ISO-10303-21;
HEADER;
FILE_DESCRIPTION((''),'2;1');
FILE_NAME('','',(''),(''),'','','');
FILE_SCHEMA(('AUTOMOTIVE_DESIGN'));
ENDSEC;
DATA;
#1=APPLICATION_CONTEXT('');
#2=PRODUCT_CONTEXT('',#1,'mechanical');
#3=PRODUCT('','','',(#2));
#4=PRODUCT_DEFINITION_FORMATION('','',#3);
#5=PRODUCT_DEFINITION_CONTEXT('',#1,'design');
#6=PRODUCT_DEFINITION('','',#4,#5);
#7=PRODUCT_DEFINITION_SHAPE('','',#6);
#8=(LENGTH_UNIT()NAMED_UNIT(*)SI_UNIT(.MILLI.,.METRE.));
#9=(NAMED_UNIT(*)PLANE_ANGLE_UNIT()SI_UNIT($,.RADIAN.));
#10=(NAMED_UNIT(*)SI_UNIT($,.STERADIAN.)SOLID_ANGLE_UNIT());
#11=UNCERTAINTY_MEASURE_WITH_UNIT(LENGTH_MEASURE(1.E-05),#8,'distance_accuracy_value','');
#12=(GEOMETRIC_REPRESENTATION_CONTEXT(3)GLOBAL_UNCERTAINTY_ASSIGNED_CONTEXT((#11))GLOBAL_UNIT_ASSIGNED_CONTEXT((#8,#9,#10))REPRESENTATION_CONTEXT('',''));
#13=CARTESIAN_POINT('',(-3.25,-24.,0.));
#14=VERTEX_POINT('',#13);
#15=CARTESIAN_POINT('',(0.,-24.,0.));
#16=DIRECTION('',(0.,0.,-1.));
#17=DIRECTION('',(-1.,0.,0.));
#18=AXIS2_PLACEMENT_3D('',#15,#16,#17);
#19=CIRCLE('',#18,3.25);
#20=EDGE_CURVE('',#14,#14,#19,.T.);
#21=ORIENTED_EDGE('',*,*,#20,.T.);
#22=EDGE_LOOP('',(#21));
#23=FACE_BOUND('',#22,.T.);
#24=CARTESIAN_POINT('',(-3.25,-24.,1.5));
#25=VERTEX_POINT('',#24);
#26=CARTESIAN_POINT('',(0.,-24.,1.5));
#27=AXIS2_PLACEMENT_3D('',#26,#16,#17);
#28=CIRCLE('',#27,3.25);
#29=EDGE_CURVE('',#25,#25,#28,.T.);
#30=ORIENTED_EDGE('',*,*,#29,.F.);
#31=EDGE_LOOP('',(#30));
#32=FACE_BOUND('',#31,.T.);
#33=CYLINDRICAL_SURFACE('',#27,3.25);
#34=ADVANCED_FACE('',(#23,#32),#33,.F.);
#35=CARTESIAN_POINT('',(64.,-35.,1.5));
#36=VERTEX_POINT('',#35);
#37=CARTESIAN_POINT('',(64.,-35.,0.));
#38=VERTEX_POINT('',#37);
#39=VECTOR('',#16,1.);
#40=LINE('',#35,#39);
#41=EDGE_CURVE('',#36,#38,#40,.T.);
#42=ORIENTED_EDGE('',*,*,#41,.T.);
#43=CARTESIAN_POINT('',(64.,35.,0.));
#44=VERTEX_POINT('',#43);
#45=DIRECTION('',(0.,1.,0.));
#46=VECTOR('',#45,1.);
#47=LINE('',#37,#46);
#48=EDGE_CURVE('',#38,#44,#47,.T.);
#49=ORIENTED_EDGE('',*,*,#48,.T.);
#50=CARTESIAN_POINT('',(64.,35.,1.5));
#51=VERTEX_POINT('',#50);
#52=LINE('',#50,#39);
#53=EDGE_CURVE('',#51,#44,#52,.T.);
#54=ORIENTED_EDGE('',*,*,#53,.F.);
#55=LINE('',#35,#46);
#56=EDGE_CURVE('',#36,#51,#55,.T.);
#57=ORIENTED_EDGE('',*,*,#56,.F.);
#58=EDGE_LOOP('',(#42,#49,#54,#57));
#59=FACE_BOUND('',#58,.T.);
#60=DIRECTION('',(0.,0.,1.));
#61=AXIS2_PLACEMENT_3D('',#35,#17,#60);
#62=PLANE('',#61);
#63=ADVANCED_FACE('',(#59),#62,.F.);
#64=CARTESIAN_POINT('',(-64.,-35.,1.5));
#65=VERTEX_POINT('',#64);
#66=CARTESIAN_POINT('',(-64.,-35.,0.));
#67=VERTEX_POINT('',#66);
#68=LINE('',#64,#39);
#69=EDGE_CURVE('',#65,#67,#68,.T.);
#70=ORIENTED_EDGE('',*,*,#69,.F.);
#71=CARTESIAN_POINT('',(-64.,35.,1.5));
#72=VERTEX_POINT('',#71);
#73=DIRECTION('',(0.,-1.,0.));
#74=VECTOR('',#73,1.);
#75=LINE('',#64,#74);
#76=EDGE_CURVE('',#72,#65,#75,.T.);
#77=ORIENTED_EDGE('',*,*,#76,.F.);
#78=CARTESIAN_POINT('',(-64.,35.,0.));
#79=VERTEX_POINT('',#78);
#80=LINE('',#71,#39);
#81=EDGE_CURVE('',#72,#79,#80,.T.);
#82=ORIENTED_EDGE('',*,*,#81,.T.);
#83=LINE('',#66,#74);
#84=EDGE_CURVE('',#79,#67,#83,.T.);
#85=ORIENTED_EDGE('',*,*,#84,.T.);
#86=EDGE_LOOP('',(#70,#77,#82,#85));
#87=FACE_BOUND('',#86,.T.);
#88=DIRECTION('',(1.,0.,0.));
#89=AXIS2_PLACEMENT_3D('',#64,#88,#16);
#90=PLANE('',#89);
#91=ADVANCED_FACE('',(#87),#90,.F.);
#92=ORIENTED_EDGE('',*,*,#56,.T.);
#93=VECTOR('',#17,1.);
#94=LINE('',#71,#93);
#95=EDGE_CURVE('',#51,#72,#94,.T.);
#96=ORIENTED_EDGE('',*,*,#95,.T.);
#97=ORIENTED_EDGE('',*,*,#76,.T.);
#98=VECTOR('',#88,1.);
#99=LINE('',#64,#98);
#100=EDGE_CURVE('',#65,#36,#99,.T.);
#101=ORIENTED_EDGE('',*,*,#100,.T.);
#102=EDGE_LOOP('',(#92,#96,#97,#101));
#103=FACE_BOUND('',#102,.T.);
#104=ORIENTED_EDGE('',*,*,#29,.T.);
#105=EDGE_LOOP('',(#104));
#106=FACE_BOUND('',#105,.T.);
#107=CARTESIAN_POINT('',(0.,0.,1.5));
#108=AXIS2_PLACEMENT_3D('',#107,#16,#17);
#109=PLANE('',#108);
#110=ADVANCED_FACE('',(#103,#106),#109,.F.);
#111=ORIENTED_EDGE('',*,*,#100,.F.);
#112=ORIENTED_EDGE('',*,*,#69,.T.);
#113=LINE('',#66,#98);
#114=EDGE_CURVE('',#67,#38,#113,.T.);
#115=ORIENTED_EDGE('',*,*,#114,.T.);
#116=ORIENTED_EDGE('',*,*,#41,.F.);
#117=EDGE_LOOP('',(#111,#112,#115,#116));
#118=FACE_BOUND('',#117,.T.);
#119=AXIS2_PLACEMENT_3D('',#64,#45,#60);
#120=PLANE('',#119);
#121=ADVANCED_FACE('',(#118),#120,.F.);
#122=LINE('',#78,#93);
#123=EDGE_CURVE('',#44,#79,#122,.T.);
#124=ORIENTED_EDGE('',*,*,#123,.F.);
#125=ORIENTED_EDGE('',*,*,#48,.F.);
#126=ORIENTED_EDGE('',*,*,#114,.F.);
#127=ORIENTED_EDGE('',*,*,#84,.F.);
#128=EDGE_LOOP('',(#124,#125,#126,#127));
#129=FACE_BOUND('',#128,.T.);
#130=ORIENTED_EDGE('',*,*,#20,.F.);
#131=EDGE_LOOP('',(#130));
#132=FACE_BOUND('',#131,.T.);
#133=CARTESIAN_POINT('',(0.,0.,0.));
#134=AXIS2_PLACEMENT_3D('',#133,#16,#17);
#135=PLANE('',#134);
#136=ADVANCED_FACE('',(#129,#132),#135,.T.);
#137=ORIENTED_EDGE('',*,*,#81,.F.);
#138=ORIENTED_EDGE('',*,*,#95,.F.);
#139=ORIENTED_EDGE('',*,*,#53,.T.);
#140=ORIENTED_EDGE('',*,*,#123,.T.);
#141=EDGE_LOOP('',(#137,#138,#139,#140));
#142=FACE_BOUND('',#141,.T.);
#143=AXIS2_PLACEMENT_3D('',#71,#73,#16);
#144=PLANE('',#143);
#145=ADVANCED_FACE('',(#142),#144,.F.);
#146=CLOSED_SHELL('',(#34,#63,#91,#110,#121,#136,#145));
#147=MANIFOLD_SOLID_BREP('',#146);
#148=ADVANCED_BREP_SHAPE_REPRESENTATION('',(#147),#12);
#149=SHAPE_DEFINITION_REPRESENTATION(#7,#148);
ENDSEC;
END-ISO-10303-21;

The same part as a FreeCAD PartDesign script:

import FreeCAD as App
import Part
import Sketcher
Q = App.Units.Quantity

doc = App.newDocument("Part")
body = doc.addObject("PartDesign::Body", "Body")

sketch1 = doc.addObject("Sketcher::SketchObject", "Sketch")
body.addObject(sketch1)
sketch1.AttachmentSupport = (doc.XY_Plane, [""])
sketch1.MapMode = "FlatFace"
sketch1.addGeometry([
    Part.LineSegment(App.Vector(-64, 35, 0), App.Vector(-64, -35, 0)),
    Part.LineSegment(App.Vector(-64, -35, 0), App.Vector(64, -35, 0)),
    Part.LineSegment(App.Vector(64, -35, 0), App.Vector(64, 35, 0)),
    Part.LineSegment(App.Vector(64, 35, 0), App.Vector(-64, 35, 0)),
], False)
sketch1.addConstraint([
    Sketcher.Constraint("Coincident", 0, 2, 1, 1),
    Sketcher.Constraint("Coincident", 1, 2, 2, 1),
    Sketcher.Constraint("Coincident", 2, 2, 3, 1),
    Sketcher.Constraint("Coincident", 3, 2, 0, 1),
    Sketcher.Constraint("Vertical", 0),
    Sketcher.Constraint("Horizontal", 1),
    Sketcher.Constraint("Vertical", 2),
    Sketcher.Constraint("Horizontal", 3),
    Sketcher.Constraint("Symmetric", 0, 2, 2, 2, -1, 1),
    Sketcher.Constraint("DistanceX", 1, 1, 1, 2, Q("128 mm")),
    Sketcher.Constraint("DistanceY", 0, 2, 0, 1, Q("70 mm")),
])
pad1 = doc.addObject("PartDesign::Pad", "Pad")
body.addObject(pad1)
pad1.Profile = sketch1
pad1.Length = 1.5

sketch2 = doc.addObject("Sketcher::SketchObject", "Sketch001")
body.addObject(sketch2)
sketch2.AttachmentSupport = (doc.XY_Plane, [""])
sketch2.MapMode = "FlatFace"
sketch2.addGeometry(Part.Circle(App.Vector(0, -24, 0), App.Vector(0, 0, 1), 3.2), False)
sketch2.addConstraint([
    Sketcher.Constraint("PointOnObject", 0, 3, -2),
    Sketcher.Constraint("Diameter", 0, Q("6.5 mm")),
    Sketcher.Constraint("DistanceY", 0, 3, -1, 1, Q("24 mm")),
])
pocket1 = doc.addObject("PartDesign::Pocket", "Pocket")
body.addObject(pocket1)
pocket1.Profile = sketch2
pocket1.Type = "ThroughAll"
pocket1.Reversed = True

doc.recompute()
